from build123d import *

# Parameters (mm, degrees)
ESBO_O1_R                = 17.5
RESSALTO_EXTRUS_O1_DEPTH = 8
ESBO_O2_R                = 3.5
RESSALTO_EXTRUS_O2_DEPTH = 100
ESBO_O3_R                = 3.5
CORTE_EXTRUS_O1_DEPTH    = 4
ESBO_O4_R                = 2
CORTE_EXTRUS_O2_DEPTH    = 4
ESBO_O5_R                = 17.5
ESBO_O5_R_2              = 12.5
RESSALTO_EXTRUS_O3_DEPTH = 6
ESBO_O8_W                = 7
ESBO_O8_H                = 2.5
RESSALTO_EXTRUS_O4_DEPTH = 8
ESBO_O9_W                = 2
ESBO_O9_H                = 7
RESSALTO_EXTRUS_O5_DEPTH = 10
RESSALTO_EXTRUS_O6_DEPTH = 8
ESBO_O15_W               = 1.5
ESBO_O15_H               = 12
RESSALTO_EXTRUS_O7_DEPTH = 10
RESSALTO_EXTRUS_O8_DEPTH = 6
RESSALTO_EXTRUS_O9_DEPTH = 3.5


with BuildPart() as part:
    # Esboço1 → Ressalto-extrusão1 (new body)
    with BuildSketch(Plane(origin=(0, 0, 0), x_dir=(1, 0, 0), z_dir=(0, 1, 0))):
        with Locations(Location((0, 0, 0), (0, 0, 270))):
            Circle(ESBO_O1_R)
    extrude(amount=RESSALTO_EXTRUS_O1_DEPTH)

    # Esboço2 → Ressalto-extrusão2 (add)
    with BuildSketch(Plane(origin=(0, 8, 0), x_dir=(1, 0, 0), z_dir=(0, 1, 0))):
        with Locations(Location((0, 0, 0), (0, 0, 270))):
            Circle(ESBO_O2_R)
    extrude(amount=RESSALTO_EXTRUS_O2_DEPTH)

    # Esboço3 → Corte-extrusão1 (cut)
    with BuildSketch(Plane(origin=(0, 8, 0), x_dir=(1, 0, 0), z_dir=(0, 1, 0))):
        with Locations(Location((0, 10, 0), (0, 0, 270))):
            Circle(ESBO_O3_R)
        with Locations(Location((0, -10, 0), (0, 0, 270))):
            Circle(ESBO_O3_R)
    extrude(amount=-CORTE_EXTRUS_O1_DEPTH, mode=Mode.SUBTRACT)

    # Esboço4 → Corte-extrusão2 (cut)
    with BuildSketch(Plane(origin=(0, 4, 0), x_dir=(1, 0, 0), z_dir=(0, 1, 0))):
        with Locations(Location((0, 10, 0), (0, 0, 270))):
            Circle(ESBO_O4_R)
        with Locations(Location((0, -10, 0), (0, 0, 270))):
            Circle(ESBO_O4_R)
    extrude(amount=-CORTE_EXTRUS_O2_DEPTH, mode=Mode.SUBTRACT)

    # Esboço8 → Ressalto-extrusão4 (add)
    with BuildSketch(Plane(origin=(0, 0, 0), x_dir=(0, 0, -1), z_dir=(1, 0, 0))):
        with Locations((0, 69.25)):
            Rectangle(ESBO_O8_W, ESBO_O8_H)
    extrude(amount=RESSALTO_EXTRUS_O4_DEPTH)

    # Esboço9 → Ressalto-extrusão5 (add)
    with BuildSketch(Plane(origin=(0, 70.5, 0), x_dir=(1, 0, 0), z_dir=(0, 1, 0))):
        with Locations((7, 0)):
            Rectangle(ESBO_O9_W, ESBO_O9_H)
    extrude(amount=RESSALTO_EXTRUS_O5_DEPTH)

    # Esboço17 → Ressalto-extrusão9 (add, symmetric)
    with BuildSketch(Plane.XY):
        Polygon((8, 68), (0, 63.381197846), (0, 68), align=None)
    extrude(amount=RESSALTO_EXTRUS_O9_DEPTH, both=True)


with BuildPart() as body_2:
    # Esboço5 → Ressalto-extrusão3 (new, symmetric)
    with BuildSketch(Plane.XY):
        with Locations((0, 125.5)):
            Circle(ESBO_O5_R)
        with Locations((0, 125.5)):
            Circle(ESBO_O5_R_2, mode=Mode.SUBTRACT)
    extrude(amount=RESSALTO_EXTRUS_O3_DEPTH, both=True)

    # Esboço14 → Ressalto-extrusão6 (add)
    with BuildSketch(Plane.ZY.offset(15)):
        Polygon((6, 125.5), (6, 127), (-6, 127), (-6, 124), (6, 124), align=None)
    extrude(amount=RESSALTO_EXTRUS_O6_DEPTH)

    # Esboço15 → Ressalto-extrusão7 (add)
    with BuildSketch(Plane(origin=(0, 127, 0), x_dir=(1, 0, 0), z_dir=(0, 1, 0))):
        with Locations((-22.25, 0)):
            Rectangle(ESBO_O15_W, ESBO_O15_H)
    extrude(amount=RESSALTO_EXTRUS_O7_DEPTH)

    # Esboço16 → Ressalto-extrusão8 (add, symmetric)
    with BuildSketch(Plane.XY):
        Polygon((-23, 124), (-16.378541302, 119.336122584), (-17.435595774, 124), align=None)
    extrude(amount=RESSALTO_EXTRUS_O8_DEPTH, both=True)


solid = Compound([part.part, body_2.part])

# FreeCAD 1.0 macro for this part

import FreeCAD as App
import Part
import Sketcher
from FreeCAD import Vector
Q = App.Units.Quantity

doc = App.newDocument("Part")
body = doc.addObject("PartDesign::Body", "Body")

# Sketch on XZ plane
sketch1 = doc.addObject("Sketcher::SketchObject", "Sketch")
body.addObject(sketch1)
sketch1.AttachmentSupport = (doc.XZ_Plane, [""])
sketch1.MapMode = "FlatFace"
sketch1.addGeometry(Part.Circle(Vector(0, 0, 0), Vector(0, 0, 1), 17.5), False)
sketch1.addConstraint([
    Sketcher.Constraint("Coincident", 0, 3, -1, 1),
    Sketcher.Constraint("Diameter", 0, 35.0),
])
pad1 = doc.addObject("PartDesign::Pad", "Pad")
body.addObject(pad1)
pad1.Profile = sketch1
pad1.Length = 8
pad1.Reversed = True

# Sketch on XZ plane
sketch2 = doc.addObject("Sketcher::SketchObject", "Sketch001")
body.addObject(sketch2)
sketch2.AttachmentSupport = (doc.XZ_Plane, [""])
sketch2.MapMode = "FlatFace"
sketch2.AttachmentOffset = App.Placement(Vector(0, 0, -8), App.Rotation())
sketch2.addGeometry(Part.Circle(Vector(0, 0, 0), Vector(0, 0, 1), 3.5), False)
sketch2.addConstraint([
    Sketcher.Constraint("Coincident", 0, 3, -1, 1),
    Sketcher.Constraint("Diameter", 0, 7.0),
])
pad2 = doc.addObject("PartDesign::Pad", "Pad001")
body.addObject(pad2)
pad2.Profile = sketch2
pad2.Length = 100
pad2.Reversed = True

# Sketch on XZ plane
sketch3 = doc.addObject("Sketcher::SketchObject", "Sketch002")
body.addObject(sketch3)
sketch3.AttachmentSupport = (doc.XZ_Plane, [""])
sketch3.MapMode = "FlatFace"
sketch3.AttachmentOffset = App.Placement(Vector(0, 0, -8), App.Rotation())
sketch3.addGeometry([
    Part.Circle(Vector(0, -10, 0), Vector(0, 0, 1), 3.5),
    Part.Circle(Vector(0, 10, 0), Vector(0, 0, 1), 3.5),
], False)
sketch3.addConstraint([
    Sketcher.Constraint("Equal", 0, 1),
    Sketcher.Constraint("Symmetric", 0, 3, 1, 3, -1, 1),
    Sketcher.Constraint("PointOnObject", 0, 3, -2),
    Sketcher.Constraint("Diameter", 0, 7.0),
    Sketcher.Constraint("DistanceY", 0, 3, -1, 1, 10.0),
])
pocket1 = doc.addObject("PartDesign::Pocket", "Pocket")
body.addObject(pocket1)
pocket1.Profile = sketch3
pocket1.Length = 4
pocket1.Reversed = True

# Sketch on XZ plane
sketch4 = doc.addObject("Sketcher::SketchObject", "Sketch003")
body.addObject(sketch4)
sketch4.AttachmentSupport = (doc.XZ_Plane, [""])
sketch4.MapMode = "FlatFace"
sketch4.AttachmentOffset = App.Placement(Vector(0, 0, -4), App.Rotation())
sketch4.addGeometry([
    Part.Circle(Vector(0, -10, 0), Vector(0, 0, 1), 2),
    Part.Circle(Vector(0, 10, 0), Vector(0, 0, 1), 2),
], False)
sketch4.addConstraint([
    Sketcher.Constraint("Equal", 0, 1),
    Sketcher.Constraint("Symmetric", 0, 3, 1, 3, -1, 1),
    Sketcher.Constraint("PointOnObject", 0, 3, -2),
    Sketcher.Constraint("Diameter", 0, 4.0),
    Sketcher.Constraint("DistanceY", 0, 3, -1, 1, 10.0),
])
pocket2 = doc.addObject("PartDesign::Pocket", "Pocket001")
body.addObject(pocket2)
pocket2.Profile = sketch4
pocket2.Length = 4
pocket2.Reversed = True

# Sketch on YZ plane
sketch5 = doc.addObject("Sketcher::SketchObject", "Sketch004")
body.addObject(sketch5)
sketch5.AttachmentSupport = (doc.YZ_Plane, [""])
sketch5.MapMode = "FlatFace"
sketch5.addGeometry([
    Part.LineSegment(Vector(70.5, 3.5, 0), Vector(68, 3.5, 0)),
    Part.LineSegment(Vector(68, 3.5, 0), Vector(68, -3.5, 0)),
    Part.LineSegment(Vector(68, -3.5, 0), Vector(70.5, -3.5, 0)),
    Part.LineSegment(Vector(70.5, -3.5, 0), Vector(70.5, 3.5, 0)),
], False)
sketch5.addConstraint([
    Sketcher.Constraint("Coincident", 0, 2, 1, 1),
    Sketcher.Constraint("Coincident", 1, 2, 2, 1),
    Sketcher.Constraint("Coincident", 2, 2, 3, 1),
    Sketcher.Constraint("Coincident", 3, 2, 0, 1),
    Sketcher.Constraint("Horizontal", 0),
    Sketcher.Constraint("Vertical", 1),
    Sketcher.Constraint("Horizontal", 2),
    Sketcher.Constraint("Vertical", 3),
    Sketcher.Constraint("DistanceY", 1, 2, 1, 1, 7.0),
    Sketcher.Constraint("DistanceX", 0, 2, 0, 1, 2.5),
    Sketcher.Constraint("DistanceX", -1, 1, 0, 2, 68.0),
    Sketcher.Constraint("DistanceY", -1, 1, 0, 2, 3.5),
])
pad3 = doc.addObject("PartDesign::Pad", "Pad002")
body.addObject(pad3)
pad3.Profile = sketch5
pad3.Length = 8

# Sketch on XZ plane
sketch6 = doc.addObject("Sketcher::SketchObject", "Sketch005")
body.addObject(sketch6)
sketch6.AttachmentSupport = (doc.XZ_Plane, [""])
sketch6.MapMode = "FlatFace"
sketch6.AttachmentOffset = App.Placement(Vector(0, 0, -70.5), App.Rotation())
sketch6.addGeometry([
    Part.LineSegment(Vector(6, -3.5, 0), Vector(6, 3.5, 0)),
    Part.LineSegment(Vector(6, 3.5, 0), Vector(8, 3.5, 0)),
    Part.LineSegment(Vector(8, 3.5, 0), Vector(8, -3.5, 0)),
    Part.LineSegment(Vector(8, -3.5, 0), Vector(6, -3.5, 0)),
], False)
sketch6.addConstraint([
    Sketcher.Constraint("Coincident", 0, 2, 1, 1),
    Sketcher.Constraint("Coincident", 1, 2, 2, 1),
    Sketcher.Constraint("Coincident", 2, 2, 3, 1),
    Sketcher.Constraint("Coincident", 3, 2, 0, 1),
    Sketcher.Constraint("Vertical", 0),
    Sketcher.Constraint("Horizontal", 1),
    Sketcher.Constraint("Vertical", 2),
    Sketcher.Constraint("Horizontal", 3),
    Sketcher.Constraint("DistanceX", 1, 1, 1, 2, 2.0),
    Sketcher.Constraint("DistanceY", 0, 1, 0, 2, 7.0),
    Sketcher.Constraint("DistanceX", -1, 1, 0, 2, 6.0),
    Sketcher.Constraint("DistanceY", -1, 1, 0, 2, 3.5),
])
pad4 = doc.addObject("PartDesign::Pad", "Pad003")
body.addObject(pad4)
pad4.Profile = sketch6
pad4.Length = 10
pad4.Reversed = True

# Sketch on XY plane
sketch7 = doc.addObject("Sketcher::SketchObject", "Sketch006")
body.addObject(sketch7)
sketch7.AttachmentSupport = (doc.XY_Plane, [""])
sketch7.MapMode = "FlatFace"
sketch7.addGeometry([
    Part.LineSegment(Vector(0, 63.381198, 0), Vector(8, 68, 0)),
    Part.LineSegment(Vector(8, 68, 0), Vector(0, 68, 0)),
    Part.LineSegment(Vector(0, 68, 0), Vector(0, 63.381198, 0)),
], False)
sketch7.addConstraint([
    Sketcher.Constraint("Coincident", 0, 2, 1, 1),
    Sketcher.Constraint("Coincident", 1, 2, 2, 1),
    Sketcher.Constraint("Coincident", 2, 2, 0, 1),
    Sketcher.Constraint("Horizontal", 1),
    Sketcher.Constraint("Vertical", 2),
    Sketcher.Constraint("PointOnObject", 1, 2, -2),
    Sketcher.Constraint("DistanceX", 1, 2, 1, 1, 8.0),
    Sketcher.Constraint("Angle", 0, Q("30 deg")),
    Sketcher.Constraint("DistanceY", -1, 1, 0, 2, 68.0),
])
pad5 = doc.addObject("PartDesign::Pad", "Pad004")
body.addObject(pad5)
pad5.Profile = sketch7
pad5.Length = 7
pad5.Midplane = True
body2 = doc.addObject("PartDesign::Body", "Body001")

# Sketch on XY plane
sketch8 = doc.addObject("Sketcher::SketchObject", "Sketch007")
body2.addObject(sketch8)
sketch8.AttachmentSupport = (doc.getObject("XY_Plane001"), [""])
sketch8.MapMode = "FlatFace"
sketch8.addGeometry([
    Part.Circle(Vector(0, 125.5, 0), Vector(0, 0, 1), 17.5),
    Part.Circle(Vector(0, 125.5, 0), Vector(0, 0, 1), 12.5),
], False)
sketch8.addConstraint([
    Sketcher.Constraint("Coincident", 1, 3, 0, 3),
    Sketcher.Constraint("PointOnObject", 0, 3, -2),
    Sketcher.Constraint("Diameter", 0, 35.0),
    Sketcher.Constraint("Diameter", 1, 25.0),
    Sketcher.Constraint("DistanceY", -1, 1, 0, 3, 125.5),
])
pad6 = doc.addObject("PartDesign::Pad", "Pad005")
body2.addObject(pad6)
pad6.Profile = sketch8
pad6.Length = 12
pad6.Midplane = True

# Sketch on YZ plane
sketch9 = doc.addObject("Sketcher::SketchObject", "Sketch008")
body2.addObject(sketch9)
sketch9.AttachmentSupport = (doc.getObject("YZ_Plane001"), [""])
sketch9.MapMode = "FlatFace"
sketch9.AttachmentOffset = App.Placement(Vector(0, 0, -15), App.Rotation())
sketch9.addGeometry([
    Part.LineSegment(Vector(127, 6, 0), Vector(127, -6, 0)),
    Part.LineSegment(Vector(127, -6, 0), Vector(124, -6, 0)),
    Part.LineSegment(Vector(124, -6, 0), Vector(124, 6, 0)),
    Part.LineSegment(Vector(124, 6, 0), Vector(127, 6, 0)),
], False)
sketch9.addConstraint([
    Sketcher.Constraint("Coincident", 0, 2, 1, 1),
    Sketcher.Constraint("Coincident", 1, 2, 2, 1),
    Sketcher.Constraint("Coincident", 2, 2, 3, 1),
    Sketcher.Constraint("Coincident", 3, 2, 0, 1),
    Sketcher.Constraint("Vertical", 0),
    Sketcher.Constraint("Horizontal", 1),
    Sketcher.Constraint("Vertical", 2),
    Sketcher.Constraint("Horizontal", 3),
    Sketcher.Constraint("DistanceX", 1, 2, 1, 1, 3.0),
    Sketcher.Constraint("DistanceY", 0, 2, 0, 1, 12.0),
    Sketcher.Constraint("DistanceX", -1, 1, 0, 2, 127.0),
    Sketcher.Constraint("DistanceY", 0, 2, -1, 1, 6.0),
])
pad7 = doc.addObject("PartDesign::Pad", "Pad006")
body2.addObject(pad7)
pad7.Profile = sketch9
pad7.Length = 8
pad7.Reversed = True

# Sketch on XZ plane
sketch10 = doc.addObject("Sketcher::SketchObject", "Sketch009")
body2.addObject(sketch10)
sketch10.AttachmentSupport = (doc.getObject("XZ_Plane001"), [""])
sketch10.MapMode = "FlatFace"
sketch10.AttachmentOffset = App.Placement(Vector(0, 0, -127), App.Rotation())
sketch10.addGeometry([
    Part.LineSegment(Vector(-23, -6, 0), Vector(-23, 6, 0)),
    Part.LineSegment(Vector(-23, 6, 0), Vector(-21.5, 6, 0)),
    Part.LineSegment(Vector(-21.5, 6, 0), Vector(-21.5, -6, 0)),
    Part.LineSegment(Vector(-21.5, -6, 0), Vector(-23, -6, 0)),
], False)
sketch10.addConstraint([
    Sketcher.Constraint("Coincident", 0, 2, 1, 1),
    Sketcher.Constraint("Coincident", 1, 2, 2, 1),
    Sketcher.Constraint("Coincident", 2, 2, 3, 1),
    Sketcher.Constraint("Coincident", 3, 2, 0, 1),
    Sketcher.Constraint("Vertical", 0),
    Sketcher.Constraint("Horizontal", 1),
    Sketcher.Constraint("Vertical", 2),
    Sketcher.Constraint("Horizontal", 3),
    Sketcher.Constraint("DistanceY", 0, 1, 0, 2, 12.0),
    Sketcher.Constraint("DistanceX", 1, 1, 1, 2, 1.5),
    Sketcher.Constraint("DistanceX", 0, 2, -1, 1, 23.0),
    Sketcher.Constraint("DistanceY", -1, 1, 0, 2, 6.0),
])
pad8 = doc.addObject("PartDesign::Pad", "Pad007")
body2.addObject(pad8)
pad8.Profile = sketch10
pad8.Length = 10
pad8.Reversed = True

# Sketch on XY plane
sketch11 = doc.addObject("Sketcher::SketchObject", "Sketch010")
body2.addObject(sketch11)
sketch11.AttachmentSupport = (doc.getObject("XY_Plane001"), [""])
sketch11.MapMode = "FlatFace"
sketch11.addGeometry([
    Part.LineSegment(Vector(-23, 124, 0), Vector(-16.378541, 119.336123, 0)),
    Part.LineSegment(Vector(-16.378541, 119.336123, 0), Vector(-17.435596, 124, 0)),
    Part.LineSegment(Vector(-17.435596, 124, 0), Vector(-23, 124, 0)),
], False)
sketch11.addConstraint([
    Sketcher.Constraint("Coincident", 0, 2, 1, 1),
    Sketcher.Constraint("Coincident", 1, 2, 2, 1),
    Sketcher.Constraint("Coincident", 2, 2, 0, 1),
    Sketcher.Constraint("Horizontal", 2),
    Sketcher.Constraint("DistanceY", -1, 1, 1, 2, 124.0),
    Sketcher.Constraint("DistanceX", 2, 2, -1, 1, 23.0),
    Sketcher.Constraint("DistanceX", 2, 2, 2, 1, 5.564404),
    Sketcher.Constraint("DistanceX", 0, 2, -1, 1, 16.378541),
    Sketcher.Constraint("Distance", 0, 8.099103),
])
pad9 = doc.addObject("PartDesign::Pad", "Pad008")
body2.addObject(pad9)
pad9.Profile = sketch11
pad9.Length = 12
pad9.Midplane = True

doc.recompute()
